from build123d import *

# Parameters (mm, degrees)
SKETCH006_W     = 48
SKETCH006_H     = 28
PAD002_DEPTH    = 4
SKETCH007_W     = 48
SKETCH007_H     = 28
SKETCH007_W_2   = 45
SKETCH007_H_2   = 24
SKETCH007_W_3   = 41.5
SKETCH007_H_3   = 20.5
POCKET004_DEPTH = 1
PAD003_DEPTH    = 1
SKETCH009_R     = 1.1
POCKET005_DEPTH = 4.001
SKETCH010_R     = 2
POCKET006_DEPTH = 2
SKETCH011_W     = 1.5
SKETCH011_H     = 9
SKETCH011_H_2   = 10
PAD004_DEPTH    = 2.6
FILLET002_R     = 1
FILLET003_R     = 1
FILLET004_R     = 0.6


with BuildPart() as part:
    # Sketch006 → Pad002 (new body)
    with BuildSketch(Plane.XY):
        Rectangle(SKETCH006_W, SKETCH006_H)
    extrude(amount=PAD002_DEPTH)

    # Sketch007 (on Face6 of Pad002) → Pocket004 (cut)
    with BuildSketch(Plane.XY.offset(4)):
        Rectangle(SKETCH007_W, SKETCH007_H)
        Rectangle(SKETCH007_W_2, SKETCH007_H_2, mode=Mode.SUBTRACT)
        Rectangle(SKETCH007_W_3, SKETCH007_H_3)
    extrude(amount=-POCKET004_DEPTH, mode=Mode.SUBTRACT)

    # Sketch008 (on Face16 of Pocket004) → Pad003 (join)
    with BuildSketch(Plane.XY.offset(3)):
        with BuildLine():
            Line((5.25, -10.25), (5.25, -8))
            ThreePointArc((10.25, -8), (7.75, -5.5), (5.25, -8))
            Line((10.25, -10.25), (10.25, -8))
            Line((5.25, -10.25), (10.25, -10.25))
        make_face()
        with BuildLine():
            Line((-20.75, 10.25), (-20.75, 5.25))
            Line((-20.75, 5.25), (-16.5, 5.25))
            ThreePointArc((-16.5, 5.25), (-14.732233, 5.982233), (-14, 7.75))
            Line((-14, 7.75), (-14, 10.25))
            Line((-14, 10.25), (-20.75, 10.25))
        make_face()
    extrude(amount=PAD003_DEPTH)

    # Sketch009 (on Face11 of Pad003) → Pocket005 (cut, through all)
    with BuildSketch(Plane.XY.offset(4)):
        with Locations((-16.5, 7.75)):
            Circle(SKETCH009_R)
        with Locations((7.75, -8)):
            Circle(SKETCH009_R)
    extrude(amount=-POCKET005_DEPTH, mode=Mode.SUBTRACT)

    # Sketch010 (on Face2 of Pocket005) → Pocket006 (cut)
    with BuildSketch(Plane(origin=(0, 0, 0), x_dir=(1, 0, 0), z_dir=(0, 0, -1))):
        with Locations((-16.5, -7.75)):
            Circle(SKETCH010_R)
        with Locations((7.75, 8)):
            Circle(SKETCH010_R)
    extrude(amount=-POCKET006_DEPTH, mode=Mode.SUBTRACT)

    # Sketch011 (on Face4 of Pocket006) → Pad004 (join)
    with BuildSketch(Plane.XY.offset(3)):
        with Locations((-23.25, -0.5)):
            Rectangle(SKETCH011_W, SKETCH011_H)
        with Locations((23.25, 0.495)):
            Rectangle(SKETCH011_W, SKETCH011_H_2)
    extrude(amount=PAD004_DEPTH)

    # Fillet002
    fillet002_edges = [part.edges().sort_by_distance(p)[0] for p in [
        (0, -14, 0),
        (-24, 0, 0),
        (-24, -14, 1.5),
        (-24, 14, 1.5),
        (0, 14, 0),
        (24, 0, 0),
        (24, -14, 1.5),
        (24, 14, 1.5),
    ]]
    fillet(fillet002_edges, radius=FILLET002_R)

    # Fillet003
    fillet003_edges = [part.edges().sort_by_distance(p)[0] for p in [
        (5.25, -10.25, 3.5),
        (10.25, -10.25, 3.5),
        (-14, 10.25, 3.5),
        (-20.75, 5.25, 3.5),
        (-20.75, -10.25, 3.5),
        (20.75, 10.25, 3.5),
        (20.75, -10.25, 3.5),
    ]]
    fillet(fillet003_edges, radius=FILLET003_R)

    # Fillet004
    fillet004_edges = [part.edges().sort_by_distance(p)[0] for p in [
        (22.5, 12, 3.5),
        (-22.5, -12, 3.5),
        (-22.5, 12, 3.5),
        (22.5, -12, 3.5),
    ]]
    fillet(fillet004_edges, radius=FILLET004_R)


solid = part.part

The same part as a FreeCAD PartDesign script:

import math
import FreeCAD as App
import Part
import Sketcher

V = App.Vector
Q = App.Units.Quantity


def edges_at(feature, points):
    """Names of the edges that pass closest to the given points."""
    edges = feature.Shape.Edges
    near = lambda p: min(range(len(edges)), key=lambda i: edges[i].distToShape(Part.Vertex(*p))[0])
    return sorted({f"Edge{near(p) + 1}" for p in points})

doc = App.newDocument("Part")
body = doc.addObject("PartDesign::Body", "Body")

sketch1 = body.newObject("Sketcher::SketchObject", "Sketch")
sketch1.AttachmentSupport = (doc.getObject("XY_Plane"), [""])
sketch1.MapMode = "FlatFace"
sketch1.addGeometry([
    Part.LineSegment(V(-24, 14, 0), V(-24, -14, 0)),
    Part.LineSegment(V(-24, -14, 0), V(24, -14, 0)),
    Part.LineSegment(V(24, -14, 0), V(24, 14, 0)),
    Part.LineSegment(V(24, 14, 0), V(-24, 14, 0)),
], False)
sketch1.addConstraint([
    Sketcher.Constraint("Coincident", 0, 2, 1, 1),
    Sketcher.Constraint("Coincident", 1, 2, 2, 1),
    Sketcher.Constraint("Coincident", 2, 2, 3, 1),
    Sketcher.Constraint("Coincident", 3, 2, 0, 1),
    Sketcher.Constraint("Vertical", 0),
    Sketcher.Constraint("Horizontal", 1),
    Sketcher.Constraint("Vertical", 2),
    Sketcher.Constraint("Horizontal", 3),
    Sketcher.Constraint("Symmetric", 0, 2, 2, 2, -1, 1),
    Sketcher.Constraint("DistanceX", 1, 1, 1, 2, Q("48 mm")),
    Sketcher.Constraint("DistanceY", 0, 2, 0, 1, Q("28 mm")),
])
pad1 = body.newObject("PartDesign::Pad", "Pad")
pad1.Profile = sketch1
pad1.Length = 4

sketch2 = body.newObject("Sketcher::SketchObject", "Sketch001")
sketch2.AttachmentSupport = (doc.getObject("XY_Plane"), [""])
sketch2.MapMode = "FlatFace"
sketch2.AttachmentOffset = App.Placement(V(0, 0, 4), App.Rotation())
sketch2.addGeometry([
    Part.LineSegment(V(-24, 14, 0), V(-24, -14, 0)),
    Part.LineSegment(V(-24, -14, 0), V(24, -14, 0)),
    Part.LineSegment(V(24, -14, 0), V(24, 14, 0)),
    Part.LineSegment(V(24, 14, 0), V(-24, 14, 0)),
    Part.LineSegment(V(22.5, -12, 0), V(-22.5, -12, 0)),
    Part.LineSegment(V(-22.5, -12, 0), V(-22.5, 12, 0)),
    Part.LineSegment(V(-22.5, 12, 0), V(22.5, 12, 0)),
    Part.LineSegment(V(22.5, 12, 0), V(22.5, -12, 0)),
    Part.LineSegment(V(-20.75, 10.25, 0), V(-20.75, -10.25, 0)),
    Part.LineSegment(V(-20.75, -10.25, 0), V(20.75, -10.25, 0)),
    Part.LineSegment(V(20.75, -10.25, 0), V(20.75, 10.25, 0)),
    Part.LineSegment(V(20.75, 10.25, 0), V(-20.75, 10.25, 0)),
], False)
sketch2.addConstraint([
    Sketcher.Constraint("Coincident", 0, 2, 1, 1),
    Sketcher.Constraint("Coincident", 1, 2, 2, 1),
    Sketcher.Constraint("Coincident", 2, 2, 3, 1),
    Sketcher.Constraint("Coincident", 3, 2, 0, 1),
    Sketcher.Constraint("Coincident", 4, 2, 5, 1),
    Sketcher.Constraint("Coincident", 5, 2, 6, 1),
    Sketcher.Constraint("Coincident", 6, 2, 7, 1),
    Sketcher.Constraint("Coincident", 7, 2, 4, 1),
    Sketcher.Constraint("Coincident", 8, 2, 9, 1),
    Sketcher.Constraint("Coincident", 9, 2, 10, 1),
    Sketcher.Constraint("Coincident", 10, 2, 11, 1),
    Sketcher.Constraint("Coincident", 11, 2, 8, 1),
    Sketcher.Constraint("Vertical", 0),
    Sketcher.Constraint("Horizontal", 1),
    Sketcher.Constraint("Vertical", 2),
    Sketcher.Constraint("Horizontal", 3),
    Sketcher.Constraint("Horizontal", 4),
    Sketcher.Constraint("Vertical", 5),
    Sketcher.Constraint("Horizontal", 6),
    Sketcher.Constraint("Vertical", 7),
    Sketcher.Constraint("Vertical", 8),
    Sketcher.Constraint("Horizontal", 9),
    Sketcher.Constraint("Vertical", 10),
    Sketcher.Constraint("Horizontal", 11),
    Sketcher.Constraint("Symmetric", 0, 2, 2, 2, -1, 1),
    Sketcher.Constraint("Symmetric", 4, 2, 6, 2, -1, 1),
    Sketcher.Constraint("Symmetric", 8, 2, 10, 2, -1, 1),
    Sketcher.Constraint("DistanceX", 1, 1, 1, 2, Q("48 mm")),
    Sketcher.Constraint("DistanceX", 4, 2, 4, 1, Q("45 mm")),
    Sketcher.Constraint("DistanceY", 0, 2, 0, 1, Q("28 mm")),
    Sketcher.Constraint("DistanceY", 5, 1, 5, 2, Q("24 mm")),
    Sketcher.Constraint("DistanceX", 9, 1, 9, 2, Q("41.5 mm")),
    Sketcher.Constraint("DistanceY", 8, 2, 8, 1, Q("20.5 mm")),
])
pocket1 = body.newObject("PartDesign::Pocket", "Pocket")
pocket1.Profile = sketch2
pocket1.Length = 1

sketch3 = body.newObject("Sketcher::SketchObject", "Sketch002")
sketch3.AttachmentSupport = (doc.getObject("XY_Plane"), [""])
sketch3.MapMode = "FlatFace"
sketch3.AttachmentOffset = App.Placement(V(0, 0, 3), App.Rotation())
sketch3.addGeometry([
    Part.LineSegment(V(5.25, -8, 0), V(5.25, -10.25, 0)),
    Part.LineSegment(V(5.25, -10.25, 0), V(10.25, -10.25, 0)),
    Part.LineSegment(V(10.25, -10.25, 0), V(10.25, -8, 0)),
    Part.ArcOfCircle(Part.Circle(V(7.75, -8, 0), V(0, 0, 1), 2.5), math.radians(0), math.radians(180)),
    Part.LineSegment(V(-20.75, 10.25, 0), V(-20.75, 5.25, 0)),
    Part.LineSegment(V(-20.75, 5.25, 0), V(-16.5, 5.25, 0)),
    Part.ArcOfCircle(Part.Circle(V(-16.5, 7.75, 0), V(0, 0, 1), 2.5), math.radians(-90.000004), math.radians(0.000004)),
    Part.LineSegment(V(-14, 7.75, 0), V(-14, 10.25, 0)),
    Part.LineSegment(V(-14, 10.25, 0), V(-20.75, 10.25, 0)),
], False)
sketch3.addConstraint([
    Sketcher.Constraint("Coincident", 0, 2, 1, 1),
    Sketcher.Constraint("Coincident", 1, 2, 2, 1),
    Sketcher.Constraint("Tangent", 2, 2, 3, 1),
    Sketcher.Constraint("Tangent", 3, 2, 0, 1),
    Sketcher.Constraint("Coincident", 4, 2, 5, 1),
    Sketcher.Constraint("Tangent", 5, 2, 6, 1),
    Sketcher.Constraint("Tangent", 6, 2, 7, 1),
    Sketcher.Constraint("Coincident", 7, 2, 8, 1),
    Sketcher.Constraint("Coincident", 8, 2, 4, 1),
    Sketcher.Constraint("Vertical", 0),
    Sketcher.Constraint("Horizontal", 1),
    Sketcher.Constraint("Vertical", 2),
    Sketcher.Constraint("Vertical", 4),
    Sketcher.Constraint("Horizontal", 5),
    Sketcher.Constraint("Vertical", 7),
    Sketcher.Constraint("Horizontal", 8),
    Sketcher.Constraint("Equal", 3, 6),
    Sketcher.Constraint("Equal", 1, 4),
    Sketcher.Constraint("Radius", 3, Q("2.5 mm")),
    Sketcher.Constraint("DistanceY", 3, 3, -1, 1, Q("8 mm")),
    Sketcher.Constraint("DistanceX", 6, 2, -1, 1, Q("14 mm")),
    Sketcher.Constraint("DistanceY", 0, 2, 6, 3, Q("18 mm")),
    Sketcher.Constraint("DistanceX", 4, 2, 3, 2, Q("26 mm")),
    Sketcher.Constraint("DistanceX", 5, 1, 5, 2, Q("4.25 mm")),
    Sketcher.Constraint("DistanceY", 0, 2, 0, 1, Q("2.25 mm")),
])
pad2 = body.newObject("PartDesign::Pad", "Pad001")
pad2.Profile = sketch3
pad2.Length = 1

sketch4 = body.newObject("Sketcher::SketchObject", "Sketch003")
sketch4.AttachmentSupport = (doc.getObject("XY_Plane"), [""])
sketch4.MapMode = "FlatFace"
sketch4.AttachmentOffset = App.Placement(V(0, 0, 4), App.Rotation())
sketch4.addGeometry([
    Part.Circle(V(-16.5, 7.75, 0), V(0, 0, 1), 1.1),
    Part.Circle(V(7.75, -8, 0), V(0, 0, 1), 1.1),
], False)
sketch4.addConstraint([
    Sketcher.Constraint("Equal", 0, 1),
    Sketcher.Constraint("Diameter", 0, Q("2.2 mm")),
    Sketcher.Constraint("DistanceY", 1, 3, -1, 1, Q("8 mm")),
    Sketcher.Constraint("DistanceX", 0, 3, -1, 1, Q("16.5 mm")),
    Sketcher.Constraint("DistanceY", -1, 1, 0, 3, Q("7.75 mm")),
    Sketcher.Constraint("DistanceX", -1, 1, 1, 3, Q("7.75 mm")),
])
pocket2 = body.newObject("PartDesign::Pocket", "Pocket001")
pocket2.Profile = sketch4
pocket2.Type = "ThroughAll"

sketch5 = body.newObject("Sketcher::SketchObject", "Sketch004")
sketch5.AttachmentSupport = (doc.getObject("XY_Plane"), [""])
sketch5.MapMode = "FlatFace"
sketch5.addGeometry([
    Part.Circle(V(-16.5, 7.75, 0), V(0, 0, 1), 2),
    Part.Circle(V(7.75, -8, 0), V(0, 0, 1), 2),
], False)
sketch5.addConstraint([
    Sketcher.Constraint("Equal", 0, 1),
    Sketcher.Constraint("Diameter", 0, Q("4 mm")),
    Sketcher.Constraint("DistanceY", 1, 3, -1, 1, Q("8 mm")),
    Sketcher.Constraint("DistanceX", 0, 3, -1, 1, Q("16.5 mm")),
    Sketcher.Constraint("DistanceY", -1, 1, 0, 3, Q("7.75 mm")),
    Sketcher.Constraint("DistanceX", -1, 1, 1, 3, Q("7.75 mm")),
])
pocket3 = body.newObject("PartDesign::Pocket", "Pocket002")
pocket3.Profile = sketch5
pocket3.Length = 2
pocket3.Reversed = True

sketch6 = body.newObject("Sketcher::SketchObject", "Sketch005")
sketch6.AttachmentSupport = (doc.getObject("XY_Plane"), [""])
sketch6.MapMode = "FlatFace"
sketch6.AttachmentOffset = App.Placement(V(0, 0, 3), App.Rotation())
sketch6.addGeometry([
    Part.LineSegment(V(-24, 4, 0), V(-24, -5, 0)),
    Part.LineSegment(V(-24, -5, 0), V(-22.5, -5, 0)),
    Part.LineSegment(V(-22.5, -5, 0), V(-22.5, 4, 0)),
    Part.LineSegment(V(-22.5, 4, 0), V(-24, 4, 0)),
    Part.LineSegment(V(22.5, 5.495, 0), V(22.5, -4.505, 0)),
    Part.LineSegment(V(22.5, -4.505, 0), V(24, -4.505, 0)),
    Part.LineSegment(V(24, -4.505, 0), V(24, 5.495, 0)),
    Part.LineSegment(V(24, 5.495, 0), V(22.5, 5.495, 0)),
], False)
sketch6.addConstraint([
    Sketcher.Constraint("Coincident", 0, 2, 1, 1),
    Sketcher.Constraint("Coincident", 1, 2, 2, 1),
    Sketcher.Constraint("Coincident", 2, 2, 3, 1),
    Sketcher.Constraint("Coincident", 3, 2, 0, 1),
    Sketcher.Constraint("Coincident", 4, 2, 5, 1),
    Sketcher.Constraint("Coincident", 5, 2, 6, 1),
    Sketcher.Constraint("Coincident", 6, 2, 7, 1),
    Sketcher.Constraint("Coincident", 7, 2, 4, 1),
    Sketcher.Constraint("Vertical", 0),
    Sketcher.Constraint("Horizontal", 1),
    Sketcher.Constraint("Vertical", 2),
    Sketcher.Constraint("Horizontal", 3),
    Sketcher.Constraint("Vertical", 4),
    Sketcher.Constraint("Horizontal", 5),
    Sketcher.Constraint("Vertical", 6),
    Sketcher.Constraint("Horizontal", 7),
    Sketcher.Constraint("Equal", 3, 5),
    Sketcher.Constraint("DistanceY", 0, 2, 0, 1, Q("9 mm")),
    Sketcher.Constraint("DistanceY", 4, 2, 4, 1, Q("10 mm")),
    Sketcher.Constraint("DistanceX", 1, 1, 1, 2, Q("1.5 mm")),
    Sketcher.Constraint("DistanceX", 0, 2, -1, 1, Q("24 mm")),
    Sketcher.Constraint("DistanceY", 0, 2, -1, 1, Q("5 mm")),
    Sketcher.Constraint("DistanceX", -1, 1, 5, 2, Q("24 mm")),
    Sketcher.Constraint("DistanceY", 4, 2, -1, 1, Q("4.505 mm")),
])
pad3 = body.newObject("PartDesign::Pad", "Pad002")
pad3.Profile = sketch6
pad3.Length = 2.6
doc.recompute()

fillet = body.newObject("PartDesign::Fillet", "Fillet")
fillet.Base = (pad3, edges_at(pad3, [
    (0, -14, 0),
    (-24, 0, 0),
    (-24, -14, 1.5),
    (-24, 14, 1.5),
    (0, 14, 0),
    (24, 0, 0),
    (24, -14, 1.5),
    (24, 14, 1.5),
]))
fillet.Radius = 1
doc.recompute()

fillet2 = body.newObject("PartDesign::Fillet", "Fillet001")
fillet2.Base = (fillet, edges_at(fillet, [
    (5.25, -10.25, 3.5),
    (10.25, -10.25, 3.5),
    (-14, 10.25, 3.5),
    (-20.75, 5.25, 3.5),
    (-20.75, -10.25, 3.5),
    (20.75, 10.25, 3.5),
    (20.75, -10.25, 3.5),
]))
fillet2.Radius = 1
doc.recompute()

fillet3 = body.newObject("PartDesign::Fillet", "Fillet002")
fillet3.Base = (fillet2, edges_at(fillet2, [
    (22.5, 12, 3.5),
    (-22.5, -12, 3.5),
    (-22.5, 12, 3.5),
    (22.5, -12, 3.5),
]))
fillet3.Radius = 0.6

doc.recompute()
